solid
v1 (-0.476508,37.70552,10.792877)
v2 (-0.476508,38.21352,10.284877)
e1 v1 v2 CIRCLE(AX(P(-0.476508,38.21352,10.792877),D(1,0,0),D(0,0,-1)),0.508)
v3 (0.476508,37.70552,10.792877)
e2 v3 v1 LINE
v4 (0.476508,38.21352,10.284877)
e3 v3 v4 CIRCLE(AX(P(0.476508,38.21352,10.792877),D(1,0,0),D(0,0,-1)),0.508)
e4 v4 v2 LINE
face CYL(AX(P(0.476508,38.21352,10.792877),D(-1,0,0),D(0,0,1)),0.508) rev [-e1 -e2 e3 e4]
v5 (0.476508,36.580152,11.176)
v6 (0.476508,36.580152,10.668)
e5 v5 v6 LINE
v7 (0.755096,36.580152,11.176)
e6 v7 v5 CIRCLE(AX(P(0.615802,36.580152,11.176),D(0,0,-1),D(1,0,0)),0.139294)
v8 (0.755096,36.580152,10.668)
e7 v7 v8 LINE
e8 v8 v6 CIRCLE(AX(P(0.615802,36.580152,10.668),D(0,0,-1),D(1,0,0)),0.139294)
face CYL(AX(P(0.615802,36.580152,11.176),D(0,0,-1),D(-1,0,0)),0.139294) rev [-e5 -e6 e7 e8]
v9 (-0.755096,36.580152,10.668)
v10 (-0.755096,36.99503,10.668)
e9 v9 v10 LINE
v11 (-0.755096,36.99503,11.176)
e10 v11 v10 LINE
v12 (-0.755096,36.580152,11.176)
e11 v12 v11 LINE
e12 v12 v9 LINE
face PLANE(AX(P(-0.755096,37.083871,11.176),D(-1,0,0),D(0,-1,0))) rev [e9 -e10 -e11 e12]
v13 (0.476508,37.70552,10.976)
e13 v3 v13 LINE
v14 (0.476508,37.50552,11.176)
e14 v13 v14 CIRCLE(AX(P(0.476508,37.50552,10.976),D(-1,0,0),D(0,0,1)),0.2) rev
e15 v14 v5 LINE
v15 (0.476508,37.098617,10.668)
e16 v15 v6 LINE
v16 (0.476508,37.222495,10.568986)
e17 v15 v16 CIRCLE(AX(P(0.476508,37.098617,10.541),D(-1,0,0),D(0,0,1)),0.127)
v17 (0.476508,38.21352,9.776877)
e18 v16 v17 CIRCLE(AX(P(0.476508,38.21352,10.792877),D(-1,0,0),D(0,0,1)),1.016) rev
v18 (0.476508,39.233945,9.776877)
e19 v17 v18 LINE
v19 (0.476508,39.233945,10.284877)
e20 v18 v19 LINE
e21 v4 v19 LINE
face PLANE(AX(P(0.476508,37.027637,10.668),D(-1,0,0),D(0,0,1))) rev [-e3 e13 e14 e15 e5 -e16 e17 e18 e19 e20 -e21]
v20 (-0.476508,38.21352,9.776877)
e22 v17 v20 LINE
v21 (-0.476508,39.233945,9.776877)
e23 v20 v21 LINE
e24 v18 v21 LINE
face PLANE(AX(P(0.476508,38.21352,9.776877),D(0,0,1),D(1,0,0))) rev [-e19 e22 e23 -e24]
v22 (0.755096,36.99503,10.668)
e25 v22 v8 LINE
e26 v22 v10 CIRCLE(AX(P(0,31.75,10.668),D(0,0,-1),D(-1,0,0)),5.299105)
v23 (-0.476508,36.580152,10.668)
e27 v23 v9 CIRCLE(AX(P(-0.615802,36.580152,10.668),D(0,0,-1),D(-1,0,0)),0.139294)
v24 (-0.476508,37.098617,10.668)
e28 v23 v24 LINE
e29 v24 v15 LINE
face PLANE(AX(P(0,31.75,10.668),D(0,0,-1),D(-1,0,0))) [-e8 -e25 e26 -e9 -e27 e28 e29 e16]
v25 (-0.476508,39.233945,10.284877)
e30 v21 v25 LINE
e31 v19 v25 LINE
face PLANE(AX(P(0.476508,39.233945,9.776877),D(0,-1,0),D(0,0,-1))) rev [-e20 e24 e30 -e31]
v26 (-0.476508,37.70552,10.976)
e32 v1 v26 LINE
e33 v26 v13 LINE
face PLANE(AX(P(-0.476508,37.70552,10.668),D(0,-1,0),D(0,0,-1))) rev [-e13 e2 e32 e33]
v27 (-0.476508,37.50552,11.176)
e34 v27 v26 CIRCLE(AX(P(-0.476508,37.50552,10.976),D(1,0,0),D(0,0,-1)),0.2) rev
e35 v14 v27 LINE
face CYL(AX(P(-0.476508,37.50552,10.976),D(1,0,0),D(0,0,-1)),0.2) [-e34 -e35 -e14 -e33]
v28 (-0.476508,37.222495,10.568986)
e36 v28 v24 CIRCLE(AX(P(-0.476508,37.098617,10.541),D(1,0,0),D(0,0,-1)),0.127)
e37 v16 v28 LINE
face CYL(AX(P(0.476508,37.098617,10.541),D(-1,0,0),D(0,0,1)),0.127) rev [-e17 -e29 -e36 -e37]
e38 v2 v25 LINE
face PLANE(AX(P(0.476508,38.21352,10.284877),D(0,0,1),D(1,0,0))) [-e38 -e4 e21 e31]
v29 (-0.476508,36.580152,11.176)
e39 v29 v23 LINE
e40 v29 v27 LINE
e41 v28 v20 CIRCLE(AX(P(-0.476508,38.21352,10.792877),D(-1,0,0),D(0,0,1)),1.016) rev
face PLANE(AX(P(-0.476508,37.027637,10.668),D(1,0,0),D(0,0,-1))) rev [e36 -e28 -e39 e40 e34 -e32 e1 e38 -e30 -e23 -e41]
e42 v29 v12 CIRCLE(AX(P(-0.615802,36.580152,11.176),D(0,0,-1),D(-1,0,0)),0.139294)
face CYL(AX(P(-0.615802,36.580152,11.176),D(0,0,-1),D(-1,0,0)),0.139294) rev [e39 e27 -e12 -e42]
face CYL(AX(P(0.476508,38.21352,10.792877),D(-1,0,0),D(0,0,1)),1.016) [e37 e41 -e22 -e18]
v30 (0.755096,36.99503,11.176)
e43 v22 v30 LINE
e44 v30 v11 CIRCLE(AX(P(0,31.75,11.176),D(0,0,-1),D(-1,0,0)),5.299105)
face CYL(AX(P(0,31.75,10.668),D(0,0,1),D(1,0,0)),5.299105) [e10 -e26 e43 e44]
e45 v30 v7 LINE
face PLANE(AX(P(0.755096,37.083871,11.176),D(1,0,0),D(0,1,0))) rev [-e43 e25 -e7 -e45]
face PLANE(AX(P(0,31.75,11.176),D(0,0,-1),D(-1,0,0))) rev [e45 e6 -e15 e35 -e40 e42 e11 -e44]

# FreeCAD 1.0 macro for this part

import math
import FreeCAD as App
import Part
import Sketcher
from FreeCAD import Vector
Q = App.Units.Quantity


def edges_at(feature, points):
    """Names of the edges that pass closest to the given points."""
    edges = feature.Shape.Edges
    near = lambda p: min(range(len(edges)), key=lambda i: edges[i].distToShape(Part.Vertex(*p))[0])
    return sorted({f"Edge{near(p) + 1}" for p in points})

doc = App.newDocument("Part")
body = doc.addObject("PartDesign::Body", "Body")

sketch1 = body.newObject("Sketcher::SketchObject", "Sketch")
sketch1.AttachmentSupport = (doc.getObject("XY_Plane"), [""])
sketch1.MapMode = "FlatFace"
sketch1.AttachmentOffset = App.Placement(Vector(0, 0, 0.44 * 25.4), App.Rotation())
sketch1.addGeometry([
    Part.LineSegment(Vector(-0.5, 37, 0), Vector(-0.5, 37.7, 0)),
    Part.LineSegment(Vector(-0.5, 37.7, 0), Vector(0.5, 37.7, 0)),
    Part.LineSegment(Vector(0.5, 37.7, 0), Vector(0.5, 37, 0)),
    Part.ArcOfCircle(Part.Circle(Vector(0, 31.8, 0), Vector(0, 0, 1), 5.3), math.radians(95), math.radians(445)),
], False)
sketch1.addConstraint([
    Sketcher.Constraint("Coincident", 0, 2, 1, 1),
    Sketcher.Constraint("Coincident", 1, 2, 2, 1),
    Sketcher.Constraint("Coincident", 2, 2, 3, 2),
    Sketcher.Constraint("Coincident", 3, 1, 0, 1),
    Sketcher.Constraint("Vertical", 0),
    Sketcher.Constraint("Horizontal", 1),
    Sketcher.Constraint("Vertical", 2),
    Sketcher.Constraint("Symmetric", 2, 2, 3, 1, -2),
    Sketcher.Constraint("DistanceY", -1, 1, 3, 3, Q("1.25 in")),
    Sketcher.Constraint("Radius", 3, Q("5.299105 mm")),
    Sketcher.Constraint("DistanceX", 1, 1, 1, 2, Q("0.953015 mm")),
    Sketcher.Constraint("DistanceY", 0, 1, 0, 2, Q("0.677883 mm")),
])
pad1 = body.newObject("PartDesign::Pad", "Pad")
pad1.Profile = sketch1
pad1.Length = Q("0.02 in")
pad1.Reversed = True

sketch2 = body.newObject("Sketcher::SketchObject", "Sketch001")
sketch2.AttachmentSupport = (doc.getObject("YZ_Plane"), [""])
sketch2.MapMode = "FlatFace"
sketch2.AttachmentOffset = App.Placement(Vector(0, 0, -0.476508), App.Rotation())
sketch2.addGeometry([
    Part.LineSegment(Vector(37.71, 11.18, 0), Vector(37.71, 10.79, 0)),
    Part.ArcOfCircle(Part.Circle(Vector(38.21, 10.79, 0), Vector(0, 0, 1), 0.51), math.radians(180), math.radians(270)),
    Part.LineSegment(Vector(38.21, 10.28, 0), Vector(39.23, 10.28, 0)),
    Part.LineSegment(Vector(39.23, 10.28, 0), Vector(39.23, 9.78, 0)),
    Part.LineSegment(Vector(39.23, 9.78, 0), Vector(38.21, 9.78, 0)),
    Part.ArcOfCircle(Part.Circle(Vector(38.21, 10.79, 0), Vector(0, 0, 1), 1.02), math.radians(180), math.radians(270)),
    Part.LineSegment(Vector(37.2, 10.79, 0), Vector(37.2, 11.18, 0)),
    Part.LineSegment(Vector(37.2, 11.18, 0), Vector(37.71, 11.18, 0)),
], False)
sketch2.addConstraint([
    Sketcher.Constraint("Tangent", 0, 2, 1, 1),
    Sketcher.Constraint("Tangent", 1, 2, 2, 1),
    Sketcher.Constraint("Coincident", 2, 2, 3, 1),
    Sketcher.Constraint("Coincident", 3, 2, 4, 1),
    Sketcher.Constraint("Tangent", 4, 2, 5, 2),
    Sketcher.Constraint("Tangent", 5, 1, 6, 1),
    Sketcher.Constraint("Coincident", 6, 2, 7, 1),
    Sketcher.Constraint("Coincident", 7, 2, 0, 1),
    Sketcher.Constraint("Vertical", 0),
    Sketcher.Constraint("Horizontal", 2),
    Sketcher.Constraint("Vertical", 3),
    Sketcher.Constraint("Horizontal", 4),
    Sketcher.Constraint("Vertical", 6),
    Sketcher.Constraint("Horizontal", 7),
    Sketcher.Constraint("Coincident", 5, 3, 1, 3),
    Sketcher.Constraint("Radius", 1, Q("0.02 in")),
    Sketcher.Constraint("Radius", 5, Q("0.04 in")),
    Sketcher.Constraint("DistanceY", -1, 1, 6, 2, Q("0.44 in")),
    Sketcher.Constraint("DistanceX", 2, 1, 2, 2, Q("1.020425 mm")),
    Sketcher.Constraint("DistanceY", 0, 2, 0, 1, Q("0.383123 mm")),
    Sketcher.Constraint("DistanceX", -1, 1, 1, 3, Q("38.21352 mm")),
])
pad2 = body.newObject("PartDesign::Pad", "Pad001")
pad2.Profile = sketch2
pad2.Length = 0.953015
doc.recompute()

fillet = body.newObject("PartDesign::Fillet", "Fillet")
fillet.Base = (pad2, edges_at(pad2, [(0, 37.205, 10.668)]))
fillet.Radius = Q("0.005 in")
doc.recompute()

fillet2 = body.newObject("PartDesign::Fillet", "Fillet001")
fillet2.Base = (fillet, edges_at(fillet, [(0, 37.706, 11.176)]))
fillet2.Radius = 0.2

sketch3 = body.newObject("Sketcher::SketchObject", "Sketch002")
sketch3.AttachmentSupport = (doc.getObject("XY_Plane"), [""])
sketch3.MapMode = "FlatFace"
sketch3.AttachmentOffset = App.Placement(Vector(0, 0, 0.42 * 25.4), App.Rotation())
sketch3.addGeometry([
    Part.LineSegment(Vector(-0.76, 36.58, 0), Vector(-0.76, 37.08, 0)),
    Part.ArcOfCircle(Part.Circle(Vector(-0.62, 37.08, 0), Vector(0, 0, 1), 0.14), math.radians(0), math.radians(180)),
    Part.LineSegment(Vector(-0.48, 37.08, 0), Vector(-0.48, 36.58, 0)),
    Part.ArcOfCircle(Part.Circle(Vector(-0.62, 36.58, 0), Vector(0, 0, 1), 0.14), math.radians(-180), math.radians(0)),
    Part.LineSegment(Vector(0.76, 37.08, 0), Vector(0.76, 36.58, 0)),
    Part.ArcOfCircle(Part.Circle(Vector(0.62, 36.58, 0), Vector(0, 0, 1), 0.14), math.radians(-180), math.radians(0)),
    Part.LineSegment(Vector(0.48, 36.58, 0), Vector(0.48, 37.08, 0)),
    Part.ArcOfCircle(Part.Circle(Vector(0.62, 37.08, 0), Vector(0, 0, 1), 0.14), math.radians(0), math.radians(180)),
], False)
sketch3.addConstraint([
    Sketcher.Constraint("Tangent", 0, 2, 1, 2),
    Sketcher.Constraint("Tangent", 1, 1, 2, 1),
    Sketcher.Constraint("Tangent", 2, 2, 3, 2),
    Sketcher.Constraint("Tangent", 3, 1, 0, 1),
    Sketcher.Constraint("Tangent", 4, 2, 5, 2),
    Sketcher.Constraint("Tangent", 5, 1, 6, 1),
    Sketcher.Constraint("Tangent", 6, 2, 7, 2),
    Sketcher.Constraint("Tangent", 7, 1, 4, 1),
    Sketcher.Constraint("Vertical", 0),
    Sketcher.Constraint("Vertical", 2),
    Sketcher.Constraint("Vertical", 4),
    Sketcher.Constraint("Vertical", 6),
    Sketcher.Constraint("Equal", 3, 5),
    Sketcher.Constraint("Symmetric", 3, 3, 5, 3, -2),
    Sketcher.Constraint("Horizontal", 1, 3, 7, 3),
    Sketcher.Constraint("Radius", 1, Q("0.139294 mm")),
    Sketcher.Constraint("DistanceY", 0, 1, 0, 2, Q("0.503718 mm")),
    Sketcher.Constraint("DistanceX", 1, 3, -1, 1, Q("0.615802 mm")),
    Sketcher.Constraint("DistanceY", -1, 1, 1, 3, Q("37.083871 mm")),
])
pocket1 = body.newObject("PartDesign::Pocket", "Pocket")
pocket1.Profile = sketch3
pocket1.Type = "ThroughAll"
pocket1.Reversed = True

doc.recompute()
